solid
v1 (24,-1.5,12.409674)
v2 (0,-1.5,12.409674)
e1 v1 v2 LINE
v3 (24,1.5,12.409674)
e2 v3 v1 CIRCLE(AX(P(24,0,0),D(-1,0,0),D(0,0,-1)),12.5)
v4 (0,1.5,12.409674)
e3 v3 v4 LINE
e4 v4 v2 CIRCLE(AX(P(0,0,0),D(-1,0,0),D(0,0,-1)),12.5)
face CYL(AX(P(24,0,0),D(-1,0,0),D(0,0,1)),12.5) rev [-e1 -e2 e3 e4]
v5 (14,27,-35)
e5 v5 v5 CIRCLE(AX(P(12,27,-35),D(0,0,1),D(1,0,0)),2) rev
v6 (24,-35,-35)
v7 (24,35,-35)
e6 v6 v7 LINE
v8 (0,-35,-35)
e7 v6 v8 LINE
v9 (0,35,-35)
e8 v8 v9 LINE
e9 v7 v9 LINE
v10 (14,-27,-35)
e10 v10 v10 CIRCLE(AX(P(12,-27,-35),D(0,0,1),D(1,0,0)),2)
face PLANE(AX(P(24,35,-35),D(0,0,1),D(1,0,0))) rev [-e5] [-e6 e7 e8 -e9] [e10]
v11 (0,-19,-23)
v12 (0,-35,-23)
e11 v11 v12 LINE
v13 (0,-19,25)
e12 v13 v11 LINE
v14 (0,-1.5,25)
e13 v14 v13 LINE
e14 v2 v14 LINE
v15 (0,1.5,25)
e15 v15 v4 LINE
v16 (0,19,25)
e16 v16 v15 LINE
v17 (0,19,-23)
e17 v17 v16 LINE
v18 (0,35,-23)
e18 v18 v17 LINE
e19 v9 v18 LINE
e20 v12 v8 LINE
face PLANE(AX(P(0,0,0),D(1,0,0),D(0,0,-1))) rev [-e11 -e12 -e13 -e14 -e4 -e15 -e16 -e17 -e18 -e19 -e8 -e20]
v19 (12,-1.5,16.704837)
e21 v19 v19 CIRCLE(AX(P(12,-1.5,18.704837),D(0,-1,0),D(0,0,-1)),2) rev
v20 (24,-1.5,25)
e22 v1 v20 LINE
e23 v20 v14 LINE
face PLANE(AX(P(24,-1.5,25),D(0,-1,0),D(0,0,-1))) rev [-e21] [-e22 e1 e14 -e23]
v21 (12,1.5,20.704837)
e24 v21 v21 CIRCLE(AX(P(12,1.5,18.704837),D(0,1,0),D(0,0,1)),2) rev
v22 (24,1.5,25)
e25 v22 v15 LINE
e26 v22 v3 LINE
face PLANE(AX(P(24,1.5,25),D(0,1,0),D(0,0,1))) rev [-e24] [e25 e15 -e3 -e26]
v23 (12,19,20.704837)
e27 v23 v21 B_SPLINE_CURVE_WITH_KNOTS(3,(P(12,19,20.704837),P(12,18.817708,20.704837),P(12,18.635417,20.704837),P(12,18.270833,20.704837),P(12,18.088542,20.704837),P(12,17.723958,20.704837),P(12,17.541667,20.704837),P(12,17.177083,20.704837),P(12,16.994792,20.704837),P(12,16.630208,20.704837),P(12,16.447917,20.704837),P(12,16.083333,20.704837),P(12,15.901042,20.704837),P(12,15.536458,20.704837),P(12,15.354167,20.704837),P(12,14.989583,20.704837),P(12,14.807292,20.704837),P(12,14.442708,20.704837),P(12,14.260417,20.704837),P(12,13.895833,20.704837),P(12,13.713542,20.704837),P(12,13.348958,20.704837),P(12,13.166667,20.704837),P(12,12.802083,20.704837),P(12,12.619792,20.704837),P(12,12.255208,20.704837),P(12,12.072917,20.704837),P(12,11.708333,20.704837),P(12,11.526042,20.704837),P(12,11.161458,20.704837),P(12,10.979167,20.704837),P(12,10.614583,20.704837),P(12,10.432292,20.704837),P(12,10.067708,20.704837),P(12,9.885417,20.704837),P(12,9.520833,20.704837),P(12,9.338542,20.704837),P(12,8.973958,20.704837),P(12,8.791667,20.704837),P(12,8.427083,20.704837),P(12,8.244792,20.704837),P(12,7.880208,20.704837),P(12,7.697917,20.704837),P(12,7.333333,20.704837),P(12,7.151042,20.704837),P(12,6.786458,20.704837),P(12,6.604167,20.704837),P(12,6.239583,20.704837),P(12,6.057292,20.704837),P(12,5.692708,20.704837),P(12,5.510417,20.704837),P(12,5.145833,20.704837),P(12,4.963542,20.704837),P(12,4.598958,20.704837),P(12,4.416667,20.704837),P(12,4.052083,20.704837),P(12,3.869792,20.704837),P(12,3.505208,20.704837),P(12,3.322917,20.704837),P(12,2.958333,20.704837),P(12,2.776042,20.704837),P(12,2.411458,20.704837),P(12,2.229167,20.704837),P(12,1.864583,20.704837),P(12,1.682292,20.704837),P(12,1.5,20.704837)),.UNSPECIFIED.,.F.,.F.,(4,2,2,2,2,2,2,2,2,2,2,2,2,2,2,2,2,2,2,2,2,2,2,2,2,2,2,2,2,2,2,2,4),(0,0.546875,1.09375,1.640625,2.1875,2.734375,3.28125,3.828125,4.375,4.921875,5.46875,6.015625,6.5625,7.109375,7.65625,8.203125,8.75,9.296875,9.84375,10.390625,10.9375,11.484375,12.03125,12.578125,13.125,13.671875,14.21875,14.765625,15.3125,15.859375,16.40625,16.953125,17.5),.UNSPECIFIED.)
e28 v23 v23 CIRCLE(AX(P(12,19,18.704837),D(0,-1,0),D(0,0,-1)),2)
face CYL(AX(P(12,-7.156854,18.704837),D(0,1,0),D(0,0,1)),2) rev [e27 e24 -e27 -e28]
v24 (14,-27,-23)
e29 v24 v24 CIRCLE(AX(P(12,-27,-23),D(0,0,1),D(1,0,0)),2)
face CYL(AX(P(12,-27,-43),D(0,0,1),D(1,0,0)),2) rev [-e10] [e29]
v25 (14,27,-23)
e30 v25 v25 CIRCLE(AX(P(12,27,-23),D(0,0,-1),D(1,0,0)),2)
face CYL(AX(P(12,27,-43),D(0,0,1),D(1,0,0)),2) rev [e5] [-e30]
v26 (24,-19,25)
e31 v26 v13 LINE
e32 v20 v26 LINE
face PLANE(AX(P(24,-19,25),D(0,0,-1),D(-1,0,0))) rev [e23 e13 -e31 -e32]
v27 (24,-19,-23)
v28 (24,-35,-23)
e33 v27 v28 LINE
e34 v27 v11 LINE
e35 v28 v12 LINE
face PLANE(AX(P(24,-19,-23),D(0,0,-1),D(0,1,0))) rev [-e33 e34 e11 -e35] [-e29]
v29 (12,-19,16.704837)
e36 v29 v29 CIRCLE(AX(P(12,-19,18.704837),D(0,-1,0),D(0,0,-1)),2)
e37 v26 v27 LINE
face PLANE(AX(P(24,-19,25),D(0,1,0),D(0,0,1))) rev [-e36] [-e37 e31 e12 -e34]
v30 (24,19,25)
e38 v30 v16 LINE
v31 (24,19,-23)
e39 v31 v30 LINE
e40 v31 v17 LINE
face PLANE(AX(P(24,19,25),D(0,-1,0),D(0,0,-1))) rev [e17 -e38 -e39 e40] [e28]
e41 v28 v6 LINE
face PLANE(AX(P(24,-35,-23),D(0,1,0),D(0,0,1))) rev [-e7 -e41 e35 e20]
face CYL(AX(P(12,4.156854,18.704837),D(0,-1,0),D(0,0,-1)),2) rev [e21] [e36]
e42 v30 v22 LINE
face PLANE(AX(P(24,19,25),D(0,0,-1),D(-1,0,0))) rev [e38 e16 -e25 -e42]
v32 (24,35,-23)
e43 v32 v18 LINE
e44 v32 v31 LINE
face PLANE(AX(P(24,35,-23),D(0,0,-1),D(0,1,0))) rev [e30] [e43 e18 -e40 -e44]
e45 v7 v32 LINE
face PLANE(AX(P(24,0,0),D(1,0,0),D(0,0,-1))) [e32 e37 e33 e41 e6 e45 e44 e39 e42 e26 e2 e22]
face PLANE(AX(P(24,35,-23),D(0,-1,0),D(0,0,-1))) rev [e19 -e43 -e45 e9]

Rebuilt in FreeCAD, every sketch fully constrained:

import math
import FreeCAD as App
import Part
import Sketcher
from FreeCAD import Vector
Q = App.Units.Quantity

doc = App.newDocument("Part")
params = doc.addObject("Spreadsheet::Sheet", "Params")
for row, (alias, value) in enumerate([
    ("sketch1_radius", "12.5 mm"),
    ("sketch1_width", "16 mm"),
    ("sketch1_width2", "70 mm"),
    ("sketch1_height", "48 mm"),
    ("sketch1_height2", "12 mm"),
    ("pad1_length", "24 mm"),
    ("sketch2_diameter", "4 mm"),
    ("pocket1_length", "20 mm"),
    ("sketch3_diameter", "4 mm"),
    ("pocket2_length", "20.5 mm"),
], start=1):
    params.set(f"A{row}", alias)
    params.set(f"B{row}", "=" + value)
    params.setAlias(f"B{row}", alias)

body = doc.addObject("PartDesign::Body", "Body")

# Sketch on YZ plane
sketch1 = body.newObject("Sketcher::SketchObject", "Sketch")
sketch1.AttachmentSupport = (doc.getObject("YZ_Plane"), [""])
sketch1.MapMode = "FlatFace"
sketch1.addGeometry(Part.LineSegment(Vector(35, -23, 0), Vector(19, -23, 0)), False)
sketch1.addGeometry(Part.LineSegment(Vector(19, -23, 0), Vector(19, 25, 0)), False)
sketch1.addGeometry(Part.LineSegment(Vector(19, 25, 0), Vector(1.5, 25, 0)), False)
sketch1.addGeometry(Part.LineSegment(Vector(1.5, 25, 0), Vector(1.5, 12.409674, 0)), False)
sketch1.addGeometry(Part.ArcOfCircle(Part.Circle(Vector(0, 0, 0), Vector(0, 0, 1), 12.5), math.radians(96.892103), math.radians(443.107897)), False)
sketch1.addGeometry(Part.LineSegment(Vector(-1.5, 12.409674, 0), Vector(-1.5, 25, 0)), False)
sketch1.addGeometry(Part.LineSegment(Vector(-1.5, 25, 0), Vector(-19, 25, 0)), False)
sketch1.addGeometry(Part.LineSegment(Vector(-19, 25, 0), Vector(-19, -23, 0)), False)
sketch1.addGeometry(Part.LineSegment(Vector(-19, -23, 0), Vector(-35, -23, 0)), False)
sketch1.addGeometry(Part.LineSegment(Vector(-35, -23, 0), Vector(-35, -35, 0)), False)
sketch1.addGeometry(Part.LineSegment(Vector(-35, -35, 0), Vector(35, -35, 0)), False)
sketch1.addGeometry(Part.LineSegment(Vector(35, -35, 0), Vector(35, -23, 0)), False)
sketch1.addConstraint(Sketcher.Constraint("Coincident", 0, 2, 1, 1))
sketch1.addConstraint(Sketcher.Constraint("Coincident", 1, 2, 2, 1))
sketch1.addConstraint(Sketcher.Constraint("Coincident", 2, 2, 3, 1))
sketch1.addConstraint(Sketcher.Constraint("Coincident", 3, 2, 4, 2))
sketch1.addConstraint(Sketcher.Constraint("Coincident", 4, 1, 5, 1))
sketch1.addConstraint(Sketcher.Constraint("Coincident", 5, 2, 6, 1))
sketch1.addConstraint(Sketcher.Constraint("Coincident", 6, 2, 7, 1))
sketch1.addConstraint(Sketcher.Constraint("Coincident", 7, 2, 8, 1))
sketch1.addConstraint(Sketcher.Constraint("Coincident", 8, 2, 9, 1))
sketch1.addConstraint(Sketcher.Constraint("Coincident", 9, 2, 10, 1))
sketch1.addConstraint(Sketcher.Constraint("Coincident", 10, 2, 11, 1))
sketch1.addConstraint(Sketcher.Constraint("Coincident", 11, 2, 0, 1))
sketch1.addConstraint(Sketcher.Constraint("Horizontal", 0))
sketch1.addConstraint(Sketcher.Constraint("Vertical", 1))
sketch1.addConstraint(Sketcher.Constraint("Horizontal", 2))
sketch1.addConstraint(Sketcher.Constraint("Vertical", 3))
sketch1.addConstraint(Sketcher.Constraint("Vertical", 5))
sketch1.addConstraint(Sketcher.Constraint("Horizontal", 6))
sketch1.addConstraint(Sketcher.Constraint("Vertical", 7))
sketch1.addConstraint(Sketcher.Constraint("Horizontal", 8))
sketch1.addConstraint(Sketcher.Constraint("Vertical", 9))
sketch1.addConstraint(Sketcher.Constraint("Horizontal", 10))
sketch1.addConstraint(Sketcher.Constraint("Vertical", 11))
sketch1.addConstraint(Sketcher.Constraint("Coincident", 4, 3, -1, 1))
sketch1.addConstraint(Sketcher.Constraint("Symmetric", 2, 2, 5, 2, -2))
sketch1.addConstraint(Sketcher.Constraint("Symmetric", 0, 2, 7, 2, -2))
sketch1.addConstraint(Sketcher.Constraint("Equal", 0, 8))
sketch1.addConstraint(Sketcher.Constraint("Radius", 4, Q("12.5 mm")))
sketch1.addConstraint(Sketcher.Constraint("DistanceX", 0, 2, 0, 1, Q("16 mm")))
sketch1.addConstraint(Sketcher.Constraint("DistanceX", 10, 1, 10, 2, Q("70 mm")))
sketch1.addConstraint(Sketcher.Constraint("DistanceY", 1, 1, 1, 2, Q("48 mm")))
sketch1.addConstraint(Sketcher.Constraint("DistanceY", 9, 2, 9, 1, Q("12 mm")))
sketch1.addConstraint(Sketcher.Constraint("DistanceX", 2, 2, 2, 1, Q("17.5 mm")))
sketch1.addConstraint(Sketcher.Constraint("DistanceY", 0, 2, -1, 1, Q("23 mm")))
sketch1.setExpression("Constraints[27]", "Params.sketch1_radius")
sketch1.setExpression("Constraints[28]", "Params.sketch1_width")
sketch1.setExpression("Constraints[29]", "Params.sketch1_width2")
sketch1.setExpression("Constraints[30]", "Params.sketch1_height")
sketch1.setExpression("Constraints[31]", "Params.sketch1_height2")
pad1 = body.newObject("PartDesign::Pad", "Pad")
pad1.Profile = sketch1
pad1.setExpression("Length", "Params.pad1_length")

# Sketch on XY plane
sketch2 = body.newObject("Sketcher::SketchObject", "Sketch001")
sketch2.AttachmentSupport = (doc.getObject("XY_Plane"), [""])
sketch2.MapMode = "FlatFace"
sketch2.AttachmentOffset = App.Placement(Vector(0, 0, -23), App.Rotation())
sketch2.addGeometry(Part.Circle(Vector(12, -27, 0), Vector(0, 0, 1), 2), False)
sketch2.addConstraint(Sketcher.Constraint("Diameter", 0, Q("4 mm")))
sketch2.addConstraint(Sketcher.Constraint("DistanceX", -1, 1, 0, 3, Q("12 mm")))
sketch2.addConstraint(Sketcher.Constraint("DistanceY", 0, 3, -1, 1, Q("27 mm")))
sketch2.setExpression("Constraints[0]", "Params.sketch2_diameter")
pocket1 = body.newObject("PartDesign::Pocket", "Pocket")
pocket1.Profile = sketch2
pocket1.setExpression("Length", "Params.pocket1_length")

# Sketch on XZ plane
sketch3 = body.newObject("Sketcher::SketchObject", "Sketch002")
sketch3.AttachmentSupport = (doc.getObject("XZ_Plane"), [""])
sketch3.MapMode = "FlatFace"
sketch3.AttachmentOffset = App.Placement(Vector(0, 0, 19), App.Rotation())
sketch3.addGeometry(Part.Circle(Vector(12, 18.704837, 0), Vector(0, 0, 1), 2), False)
sketch3.addConstraint(Sketcher.Constraint("Diameter", 0, Q("4 mm")))
sketch3.addConstraint(Sketcher.Constraint("DistanceX", -1, 1, 0, 3, Q("12 mm")))
sketch3.addConstraint(Sketcher.Constraint("DistanceY", -1, 1, 0, 3, Q("18.704837 mm")))
sketch3.setExpression("Constraints[0]", "Params.sketch3_diameter")
pocket2 = body.newObject("PartDesign::Pocket", "Pocket001")
pocket2.Profile = sketch3
pocket2.setExpression("Length", "Params.pocket2_length")
doc.recompute()

mirrored = body.newObject("PartDesign::Mirrored", "Mirrored")
mirrored.Originals = [pocket1, pocket2]
mirrored.MirrorPlane = (doc.getObject("XZ_Plane"), [""])
body.Tip = mirrored

doc.recompute()
